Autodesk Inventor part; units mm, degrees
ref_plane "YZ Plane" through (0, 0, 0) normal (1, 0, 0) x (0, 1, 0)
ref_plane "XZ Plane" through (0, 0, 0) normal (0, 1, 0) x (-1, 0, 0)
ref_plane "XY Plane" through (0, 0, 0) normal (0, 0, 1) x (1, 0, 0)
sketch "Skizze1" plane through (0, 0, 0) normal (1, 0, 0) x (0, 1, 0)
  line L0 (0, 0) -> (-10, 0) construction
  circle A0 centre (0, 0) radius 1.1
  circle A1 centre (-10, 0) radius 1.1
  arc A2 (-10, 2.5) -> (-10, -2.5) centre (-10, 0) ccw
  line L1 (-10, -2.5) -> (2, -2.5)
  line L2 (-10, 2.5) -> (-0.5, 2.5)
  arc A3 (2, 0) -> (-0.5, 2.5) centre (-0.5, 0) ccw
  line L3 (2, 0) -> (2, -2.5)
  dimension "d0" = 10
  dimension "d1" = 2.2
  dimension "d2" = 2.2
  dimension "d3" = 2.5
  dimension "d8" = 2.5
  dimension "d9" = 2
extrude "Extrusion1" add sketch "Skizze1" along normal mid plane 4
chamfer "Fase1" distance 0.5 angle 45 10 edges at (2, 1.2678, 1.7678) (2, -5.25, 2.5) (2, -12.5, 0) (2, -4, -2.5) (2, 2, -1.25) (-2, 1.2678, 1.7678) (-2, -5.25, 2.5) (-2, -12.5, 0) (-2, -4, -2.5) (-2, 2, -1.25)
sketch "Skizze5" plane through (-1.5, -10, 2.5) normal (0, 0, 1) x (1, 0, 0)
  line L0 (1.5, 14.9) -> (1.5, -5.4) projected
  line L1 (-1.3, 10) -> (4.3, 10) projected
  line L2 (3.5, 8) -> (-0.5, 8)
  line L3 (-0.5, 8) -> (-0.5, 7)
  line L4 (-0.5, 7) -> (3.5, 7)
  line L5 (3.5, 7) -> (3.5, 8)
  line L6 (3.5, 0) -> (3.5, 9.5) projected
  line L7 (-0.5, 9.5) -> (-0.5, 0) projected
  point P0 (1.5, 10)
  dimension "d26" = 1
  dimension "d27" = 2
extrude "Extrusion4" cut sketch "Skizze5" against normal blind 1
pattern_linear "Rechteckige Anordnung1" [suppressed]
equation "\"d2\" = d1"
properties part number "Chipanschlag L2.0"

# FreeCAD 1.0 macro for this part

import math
import FreeCAD as App
import Part
import Sketcher

V = App.Vector
Q = App.Units.Quantity


def edges_at(feature, points):
    """Names of the edges that pass closest to the given points."""
    edges = feature.Shape.Edges
    near = lambda p: min(range(len(edges)), key=lambda i: edges[i].distToShape(Part.Vertex(*p))[0])
    return sorted({f"Edge{near(p) + 1}" for p in points})


def add_polygon(sketch, points):
    """Adds a closed chain of lines whose ends are joined by coincident constraints."""
    first, n = sketch.GeometryCount, len(points)
    for a, b in zip(points, points[1:] + points[:1]):
        sketch.addGeometry(Part.LineSegment(App.Vector(*a, 0), App.Vector(*b, 0)), False)
    for i in range(n):
        sketch.addConstraint(Sketcher.Constraint("Coincident", first + i, 2, first + (i + 1) % n, 1))

doc = App.newDocument("Part")
body = doc.addObject("PartDesign::Body", "Body")

# Sketch on YZ plane
sketch1 = doc.addObject("Sketcher::SketchObject", "Sketch")
body.addObject(sketch1)
sketch1.AttachmentSupport = (doc.YZ_Plane, [""])
sketch1.MapMode = "FlatFace"
sketch1.addGeometry(Part.LineSegment(V(-0.5, 2.5, 0), V(-10, 2.5, 0)), False)
sketch1.addGeometry(Part.ArcOfCircle(Part.Circle(V(-10, 0, 0), V(0, 0, 1), 2.5), math.radians(90), math.radians(270)), False)
sketch1.addGeometry(Part.LineSegment(V(-10, -2.5, 0), V(2, -2.5, 0)), False)
sketch1.addGeometry(Part.LineSegment(V(2, -2.5, 0), V(2, 0, 0)), False)
sketch1.addGeometry(Part.ArcOfCircle(Part.Circle(V(-0.5, 0, 0), V(0, 0, 1), 2.5), math.radians(0), math.radians(90)), False)
sketch1.addGeometry(Part.Circle(V(-10, 0, 0), V(0, 0, 1), 1.1), False)
sketch1.addGeometry(Part.Circle(V(0, 0, 0), V(0, 0, 1), 1.1), False)
sketch1.addConstraint(Sketcher.Constraint("Tangent", 0, 2, 1, 1))
sketch1.addConstraint(Sketcher.Constraint("Tangent", 1, 2, 2, 1))
sketch1.addConstraint(Sketcher.Constraint("Coincident", 2, 2, 3, 1))
sketch1.addConstraint(Sketcher.Constraint("Tangent", 3, 2, 4, 1))
sketch1.addConstraint(Sketcher.Constraint("Tangent", 4, 2, 0, 1))
sketch1.addConstraint(Sketcher.Constraint("Horizontal", 0))
sketch1.addConstraint(Sketcher.Constraint("Horizontal", 2))
sketch1.addConstraint(Sketcher.Constraint("Vertical", 3))
sketch1.addConstraint(Sketcher.Constraint("Coincident", 6, 3, -1, 1))
sketch1.addConstraint(Sketcher.Constraint("Coincident", 5, 3, 1, 3))
sketch1.addConstraint(Sketcher.Constraint("Equal", 1, 4))
sketch1.addConstraint(Sketcher.Constraint("Equal", 5, 6))
sketch1.addConstraint(Sketcher.Constraint("PointOnObject", 1, 3, -1))
sketch1.addConstraint(Sketcher.Constraint("Diameter", 5, Q("2.2 mm")))
sketch1.addConstraint(Sketcher.Constraint("Radius", 1, Q("2.5 mm")))
sketch1.addConstraint(Sketcher.Constraint("DistanceX", 1, 3, -1, 1, Q("10 mm")))
sketch1.addConstraint(Sketcher.Constraint("DistanceX", -1, 1, 2, 2, Q("2 mm")))
pad1 = doc.addObject("PartDesign::Pad", "Pad")
body.addObject(pad1)
pad1.Profile = sketch1
pad1.Length = 4
pad1.Midplane = True
doc.recompute()

chamfer = doc.addObject("PartDesign::Chamfer", "Chamfer")
body.addObject(chamfer)
chamfer.Base = (pad1, edges_at(pad1, [
    (2, 1.268, 1.768),
    (2, -5.25, 2.5),
    (2, -12.5, 0),
    (2, -4, -2.5),
    (2, 2, -1.25),
    (-2, 1.268, 1.768),
    (-2, -5.25, 2.5),
    (-2, -12.5, 0),
    (-2, -4, -2.5),
    (-2, 2, -1.25),
]))
chamfer.Size = 0.5

# Sketch on XY plane
sketch2 = doc.addObject("Sketcher::SketchObject", "Sketch001")
body.addObject(sketch2)
sketch2.AttachmentSupport = (doc.XY_Plane, [""])
sketch2.MapMode = "FlatFace"
sketch2.AttachmentOffset = App.Placement(V(0, 0, 2.5), App.Rotation())
add_polygon(sketch2, [(2, -2), (-2, -2), (-2, -3), (2, -3)])  # lines 0-3
sketch2.addConstraint(Sketcher.Constraint("Horizontal", 0))
sketch2.addConstraint(Sketcher.Constraint("Vertical", 1))
sketch2.addConstraint(Sketcher.Constraint("Horizontal", 2))
sketch2.addConstraint(Sketcher.Constraint("Vertical", 3))
sketch2.addConstraint(Sketcher.Constraint("DistanceY", 1, 2, 1, 1, Q("1 mm")))
sketch2.addConstraint(Sketcher.Constraint("DistanceX", 0, 2, -1, 1, Q("2 mm")))
sketch2.addConstraint(Sketcher.Constraint("DistanceY", 0, 2, -1, 1, Q("2 mm")))
sketch2.addConstraint(Sketcher.Constraint("DistanceX", -1, 1, 2, 2, Q("2 mm")))
pocket1 = doc.addObject("PartDesign::Pocket", "Pocket")
body.addObject(pocket1)
pocket1.Profile = sketch2
pocket1.Length = 1

doc.recompute()
